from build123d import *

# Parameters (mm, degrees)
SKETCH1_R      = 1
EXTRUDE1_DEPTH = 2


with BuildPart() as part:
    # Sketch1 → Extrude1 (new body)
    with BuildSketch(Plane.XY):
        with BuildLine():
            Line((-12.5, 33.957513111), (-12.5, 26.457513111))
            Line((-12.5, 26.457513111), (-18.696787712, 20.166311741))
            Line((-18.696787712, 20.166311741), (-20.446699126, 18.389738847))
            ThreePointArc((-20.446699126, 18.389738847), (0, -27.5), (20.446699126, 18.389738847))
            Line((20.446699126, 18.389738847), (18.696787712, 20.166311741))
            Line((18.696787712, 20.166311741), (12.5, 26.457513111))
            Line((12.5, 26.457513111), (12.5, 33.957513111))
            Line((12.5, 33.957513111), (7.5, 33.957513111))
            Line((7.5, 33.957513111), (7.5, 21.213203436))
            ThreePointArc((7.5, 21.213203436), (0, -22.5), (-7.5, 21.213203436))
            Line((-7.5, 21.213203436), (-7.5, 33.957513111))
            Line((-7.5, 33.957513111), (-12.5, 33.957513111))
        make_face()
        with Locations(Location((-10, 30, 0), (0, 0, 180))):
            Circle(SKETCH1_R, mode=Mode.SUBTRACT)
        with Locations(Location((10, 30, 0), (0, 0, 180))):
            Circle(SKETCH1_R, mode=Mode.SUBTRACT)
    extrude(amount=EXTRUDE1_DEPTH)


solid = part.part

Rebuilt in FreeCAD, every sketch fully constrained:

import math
import FreeCAD as App
import Part
import Sketcher

V = App.Vector

doc = App.newDocument("Part")
body = doc.addObject("PartDesign::Body", "Body")

# Sketch on XY plane
sketch1 = body.newObject("Sketcher::SketchObject", "Sketch")
sketch1.AttachmentSupport = (doc.getObject("XY_Plane"), [""])
sketch1.MapMode = "FlatFace"
sketch1.addGeometry([
    Part.LineSegment(V(-12.5, 33.957513, 0), V(-12.5, 26.457513, 0)),  # 0
    Part.LineSegment(V(-12.5, 26.457513, 0), V(-18.696788, 20.166312, 0)),  # 1
    Part.LineSegment(V(-18.696788, 20.166312, 0), V(-20.446699, 18.389739, 0)),  # 2
    Part.ArcOfCircle(Part.Circle(V(0, 0, 0), V(0, 0, 1), 27.5), math.radians(138.031821), math.radians(401.968179)),  # 3
    Part.LineSegment(V(20.446699, 18.389739, 0), V(18.696788, 20.166312, 0)),  # 4
    Part.LineSegment(V(18.696788, 20.166312, 0), V(12.5, 26.457513, 0)),  # 5
    Part.LineSegment(V(12.5, 26.457513, 0), V(12.5, 33.957513, 0)),  # 6
    Part.LineSegment(V(12.5, 33.957513, 0), V(7.5, 33.957513, 0)),  # 7
    Part.LineSegment(V(7.5, 33.957513, 0), V(7.5, 21.213203, 0)),  # 8
    Part.ArcOfCircle(Part.Circle(V(0, 0, 0), V(0, 0, 1), 22.5), math.radians(109.471221), math.radians(430.528779)),  # 9
    Part.LineSegment(V(-7.5, 21.213203, 0), V(-7.5, 33.957513, 0)),  # 10
    Part.LineSegment(V(-7.5, 33.957513, 0), V(-12.5, 33.957513, 0)),  # 11
    Part.Circle(V(-10, 30, 0), V(0, 0, 1), 1),  # 12
    Part.Circle(V(10, 30, 0), V(0, 0, 1), 1),  # 13
], False)
sketch1.addConstraint([
    Sketcher.Constraint("Coincident", 0, 2, 1, 1),
    Sketcher.Constraint("Coincident", 1, 2, 2, 1),
    Sketcher.Constraint("Coincident", 2, 2, 3, 1),
    Sketcher.Constraint("Coincident", 3, 2, 4, 1),
    Sketcher.Constraint("Coincident", 4, 2, 5, 1),
    Sketcher.Constraint("Coincident", 5, 2, 6, 1),
    Sketcher.Constraint("Coincident", 6, 2, 7, 1),
    Sketcher.Constraint("Coincident", 7, 2, 8, 1),
    Sketcher.Constraint("Coincident", 8, 2, 9, 2),
    Sketcher.Constraint("Coincident", 9, 1, 10, 1),
    Sketcher.Constraint("Coincident", 10, 2, 11, 1),
    Sketcher.Constraint("Coincident", 11, 2, 0, 1),
    Sketcher.Constraint("Vertical", 0),
    Sketcher.Constraint("Vertical", 6),
    Sketcher.Constraint("Horizontal", 7),
    Sketcher.Constraint("Vertical", 8),
    Sketcher.Constraint("Vertical", 10),
    Sketcher.Constraint("Horizontal", 11),
    Sketcher.Constraint("Coincident", 3, 3, -1, 1),
    Sketcher.Constraint("Coincident", 9, 3, -1, 1),
    Sketcher.Constraint("Equal", 12, 13),
    Sketcher.Constraint("Symmetric", 12, 3, 13, 3, -2),
    Sketcher.Constraint("Symmetric", 1, 2, 4, 2, -2),
    Sketcher.Constraint("Symmetric", 0, 2, 5, 2, -2),
    Sketcher.Constraint("Symmetric", 7, 2, 10, 2, -2),
    Sketcher.Constraint("Parallel", 1, 2),
    Sketcher.Constraint("Parallel", 4, 5),
    Sketcher.Constraint("Diameter", 12, 2.0),
    Sketcher.Constraint("Radius", 3, 27.5),
    Sketcher.Constraint("Radius", 9, 22.5),
    Sketcher.Constraint("DistanceX", 7, 2, 7, 1, 5.0),
    Sketcher.Constraint("DistanceY", 0, 2, 0, 1, 7.5),
    Sketcher.Constraint("DistanceX", 12, 3, -1, 1, 10.0),
    Sketcher.Constraint("DistanceY", -1, 1, 12, 3, 30.0),
    Sketcher.Constraint("DistanceX", 0, 2, 5, 2, 25.0),
    Sketcher.Constraint("DistanceY", 8, 2, 8, 1, 12.74431),
    Sketcher.Constraint("DistanceX", 2, 2, -1, 1, 20.446699),
    Sketcher.Constraint("DistanceY", 1, 2, 0, 2, 6.291201),
])
pad1 = body.newObject("PartDesign::Pad", "Pad")
pad1.Profile = sketch1
pad1.Length = 2

doc.recompute()
